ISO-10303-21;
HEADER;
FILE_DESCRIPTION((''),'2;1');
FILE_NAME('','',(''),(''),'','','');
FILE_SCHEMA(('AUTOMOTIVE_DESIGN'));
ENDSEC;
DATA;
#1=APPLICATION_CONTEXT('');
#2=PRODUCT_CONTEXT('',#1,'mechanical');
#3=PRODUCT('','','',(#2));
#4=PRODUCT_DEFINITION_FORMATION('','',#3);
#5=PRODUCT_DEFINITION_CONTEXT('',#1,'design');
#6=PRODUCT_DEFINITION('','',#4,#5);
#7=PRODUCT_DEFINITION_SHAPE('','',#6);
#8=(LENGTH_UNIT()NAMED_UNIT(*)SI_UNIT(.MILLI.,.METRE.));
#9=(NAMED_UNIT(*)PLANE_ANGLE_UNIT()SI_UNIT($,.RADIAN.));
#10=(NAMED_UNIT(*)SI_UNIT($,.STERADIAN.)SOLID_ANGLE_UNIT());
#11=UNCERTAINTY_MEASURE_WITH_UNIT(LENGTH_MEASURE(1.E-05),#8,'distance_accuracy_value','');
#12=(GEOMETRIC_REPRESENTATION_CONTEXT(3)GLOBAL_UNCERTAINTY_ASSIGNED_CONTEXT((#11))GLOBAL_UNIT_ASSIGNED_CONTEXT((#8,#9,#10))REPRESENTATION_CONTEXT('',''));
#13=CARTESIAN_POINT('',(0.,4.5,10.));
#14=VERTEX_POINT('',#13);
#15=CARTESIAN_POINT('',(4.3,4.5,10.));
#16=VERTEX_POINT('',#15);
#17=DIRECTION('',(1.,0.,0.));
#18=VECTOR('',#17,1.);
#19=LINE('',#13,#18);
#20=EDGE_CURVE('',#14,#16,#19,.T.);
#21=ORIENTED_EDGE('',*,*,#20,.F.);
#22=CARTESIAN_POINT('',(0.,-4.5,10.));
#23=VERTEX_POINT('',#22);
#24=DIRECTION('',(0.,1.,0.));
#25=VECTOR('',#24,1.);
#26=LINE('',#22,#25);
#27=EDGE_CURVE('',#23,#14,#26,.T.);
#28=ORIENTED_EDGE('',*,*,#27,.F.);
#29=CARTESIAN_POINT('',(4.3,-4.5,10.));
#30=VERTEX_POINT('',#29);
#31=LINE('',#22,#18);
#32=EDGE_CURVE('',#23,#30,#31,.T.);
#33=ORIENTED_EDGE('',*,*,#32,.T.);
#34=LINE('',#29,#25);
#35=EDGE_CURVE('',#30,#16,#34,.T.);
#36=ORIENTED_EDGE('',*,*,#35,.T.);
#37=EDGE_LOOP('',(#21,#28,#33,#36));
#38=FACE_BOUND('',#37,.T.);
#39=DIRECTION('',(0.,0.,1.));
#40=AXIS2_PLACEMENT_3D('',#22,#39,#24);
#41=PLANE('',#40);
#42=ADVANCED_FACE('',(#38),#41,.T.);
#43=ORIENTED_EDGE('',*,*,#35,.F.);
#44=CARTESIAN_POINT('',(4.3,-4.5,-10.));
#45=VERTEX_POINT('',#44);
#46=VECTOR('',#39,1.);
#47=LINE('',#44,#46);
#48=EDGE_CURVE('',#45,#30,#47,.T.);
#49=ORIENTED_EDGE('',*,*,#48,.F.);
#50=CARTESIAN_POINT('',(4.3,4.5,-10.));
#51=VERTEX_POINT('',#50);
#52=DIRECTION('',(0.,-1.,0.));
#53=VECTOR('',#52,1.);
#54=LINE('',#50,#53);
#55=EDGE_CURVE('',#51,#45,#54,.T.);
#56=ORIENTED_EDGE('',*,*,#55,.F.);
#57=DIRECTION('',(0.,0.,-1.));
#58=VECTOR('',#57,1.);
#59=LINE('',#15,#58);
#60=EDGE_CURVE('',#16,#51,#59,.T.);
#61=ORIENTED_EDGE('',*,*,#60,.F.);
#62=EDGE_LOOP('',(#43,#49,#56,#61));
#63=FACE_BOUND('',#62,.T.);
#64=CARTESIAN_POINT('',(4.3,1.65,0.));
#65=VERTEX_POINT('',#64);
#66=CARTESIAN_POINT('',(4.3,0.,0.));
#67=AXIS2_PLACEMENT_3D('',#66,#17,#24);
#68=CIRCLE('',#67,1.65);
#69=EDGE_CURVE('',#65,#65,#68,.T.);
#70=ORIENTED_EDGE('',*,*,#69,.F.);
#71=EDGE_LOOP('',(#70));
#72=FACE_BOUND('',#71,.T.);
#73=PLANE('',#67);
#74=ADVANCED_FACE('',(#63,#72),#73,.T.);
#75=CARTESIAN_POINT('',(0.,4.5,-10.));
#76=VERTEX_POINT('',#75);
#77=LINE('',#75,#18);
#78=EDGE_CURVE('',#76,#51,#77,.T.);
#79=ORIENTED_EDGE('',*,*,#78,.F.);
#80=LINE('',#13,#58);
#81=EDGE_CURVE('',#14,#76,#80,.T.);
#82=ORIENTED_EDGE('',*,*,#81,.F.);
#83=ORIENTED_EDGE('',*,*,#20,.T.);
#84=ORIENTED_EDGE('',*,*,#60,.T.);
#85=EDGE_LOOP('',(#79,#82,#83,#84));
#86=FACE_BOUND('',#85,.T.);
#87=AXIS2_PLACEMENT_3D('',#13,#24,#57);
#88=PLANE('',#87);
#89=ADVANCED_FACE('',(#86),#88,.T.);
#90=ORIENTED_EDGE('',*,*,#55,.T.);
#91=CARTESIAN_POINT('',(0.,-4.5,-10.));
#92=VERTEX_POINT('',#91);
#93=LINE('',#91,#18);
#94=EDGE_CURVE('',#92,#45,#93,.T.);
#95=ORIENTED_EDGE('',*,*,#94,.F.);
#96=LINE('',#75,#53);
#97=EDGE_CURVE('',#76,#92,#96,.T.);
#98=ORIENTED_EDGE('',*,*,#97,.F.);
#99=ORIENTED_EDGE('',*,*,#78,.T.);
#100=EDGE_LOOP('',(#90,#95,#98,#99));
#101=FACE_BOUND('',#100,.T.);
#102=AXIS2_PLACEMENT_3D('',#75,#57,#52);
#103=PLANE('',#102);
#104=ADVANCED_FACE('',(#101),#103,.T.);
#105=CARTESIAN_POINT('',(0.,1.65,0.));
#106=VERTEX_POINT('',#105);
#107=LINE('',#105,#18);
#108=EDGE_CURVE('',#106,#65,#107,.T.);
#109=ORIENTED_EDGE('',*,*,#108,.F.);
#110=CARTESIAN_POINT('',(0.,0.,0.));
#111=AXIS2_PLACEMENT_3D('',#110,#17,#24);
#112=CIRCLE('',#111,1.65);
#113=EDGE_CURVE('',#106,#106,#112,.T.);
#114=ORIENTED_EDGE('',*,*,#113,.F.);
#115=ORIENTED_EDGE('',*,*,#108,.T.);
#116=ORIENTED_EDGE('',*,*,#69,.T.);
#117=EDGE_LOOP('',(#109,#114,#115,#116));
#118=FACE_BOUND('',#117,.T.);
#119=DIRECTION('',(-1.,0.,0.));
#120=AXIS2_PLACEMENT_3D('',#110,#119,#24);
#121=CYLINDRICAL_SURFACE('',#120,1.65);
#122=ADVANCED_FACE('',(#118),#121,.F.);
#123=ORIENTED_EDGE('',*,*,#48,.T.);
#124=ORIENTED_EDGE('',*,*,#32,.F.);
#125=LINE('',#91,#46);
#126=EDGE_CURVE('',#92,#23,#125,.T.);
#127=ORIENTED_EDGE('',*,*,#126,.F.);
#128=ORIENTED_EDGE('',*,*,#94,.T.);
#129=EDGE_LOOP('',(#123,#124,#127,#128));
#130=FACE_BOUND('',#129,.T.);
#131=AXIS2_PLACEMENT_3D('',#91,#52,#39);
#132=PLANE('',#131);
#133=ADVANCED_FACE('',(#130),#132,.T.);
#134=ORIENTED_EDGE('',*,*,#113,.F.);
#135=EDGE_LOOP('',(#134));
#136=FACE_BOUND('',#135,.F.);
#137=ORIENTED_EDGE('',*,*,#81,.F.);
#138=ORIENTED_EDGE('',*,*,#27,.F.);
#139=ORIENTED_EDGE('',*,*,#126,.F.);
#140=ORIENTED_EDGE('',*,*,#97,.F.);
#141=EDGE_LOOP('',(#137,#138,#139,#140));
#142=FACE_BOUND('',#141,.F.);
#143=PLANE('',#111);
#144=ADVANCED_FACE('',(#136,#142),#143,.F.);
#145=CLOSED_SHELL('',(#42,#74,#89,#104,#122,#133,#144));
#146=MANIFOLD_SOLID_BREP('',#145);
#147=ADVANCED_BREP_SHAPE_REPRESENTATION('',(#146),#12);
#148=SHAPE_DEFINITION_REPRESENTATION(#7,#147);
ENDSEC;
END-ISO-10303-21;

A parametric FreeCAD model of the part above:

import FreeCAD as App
import Part
import Sketcher
from FreeCAD import Vector

doc = App.newDocument("Part")
body = doc.addObject("PartDesign::Body", "Body")

# Sketch on YZ plane
sketch1 = body.newObject("Sketcher::SketchObject", "Sketch")
sketch1.AttachmentSupport = (doc.getObject("YZ_Plane"), [""])
sketch1.MapMode = "FlatFace"
sketch1.addGeometry([
    Part.LineSegment(Vector(4.5, 10, 0), Vector(-4.5, 10, 0)),  # 0
    Part.LineSegment(Vector(-4.5, 10, 0), Vector(-4.5, -10, 0)),  # 1
    Part.LineSegment(Vector(-4.5, -10, 0), Vector(4.5, -10, 0)),  # 2
    Part.LineSegment(Vector(4.5, -10, 0), Vector(4.5, 10, 0)),  # 3
    Part.Circle(Vector(0, 0, 0), Vector(0, 0, 1), 1.65),  # 4
], False)
sketch1.addConstraint([
    Sketcher.Constraint("Coincident", 0, 2, 1, 1),
    Sketcher.Constraint("Coincident", 1, 2, 2, 1),
    Sketcher.Constraint("Coincident", 2, 2, 3, 1),
    Sketcher.Constraint("Coincident", 3, 2, 0, 1),
    Sketcher.Constraint("Horizontal", 0),
    Sketcher.Constraint("Vertical", 1),
    Sketcher.Constraint("Horizontal", 2),
    Sketcher.Constraint("Vertical", 3),
    Sketcher.Constraint("Coincident", 4, 3, -1, 1),
    Sketcher.Constraint("Symmetric", 0, 2, 2, 2, -1, 1),
    Sketcher.Constraint("Diameter", 4, 3.3),
    Sketcher.Constraint("DistanceX", 0, 2, 0, 1, 9.0),
    Sketcher.Constraint("DistanceY", 1, 2, 1, 1, 20.0),
])
pad1 = body.newObject("PartDesign::Pad", "Pad")
pad1.Profile = sketch1
pad1.Length = 4.3

doc.recompute()
